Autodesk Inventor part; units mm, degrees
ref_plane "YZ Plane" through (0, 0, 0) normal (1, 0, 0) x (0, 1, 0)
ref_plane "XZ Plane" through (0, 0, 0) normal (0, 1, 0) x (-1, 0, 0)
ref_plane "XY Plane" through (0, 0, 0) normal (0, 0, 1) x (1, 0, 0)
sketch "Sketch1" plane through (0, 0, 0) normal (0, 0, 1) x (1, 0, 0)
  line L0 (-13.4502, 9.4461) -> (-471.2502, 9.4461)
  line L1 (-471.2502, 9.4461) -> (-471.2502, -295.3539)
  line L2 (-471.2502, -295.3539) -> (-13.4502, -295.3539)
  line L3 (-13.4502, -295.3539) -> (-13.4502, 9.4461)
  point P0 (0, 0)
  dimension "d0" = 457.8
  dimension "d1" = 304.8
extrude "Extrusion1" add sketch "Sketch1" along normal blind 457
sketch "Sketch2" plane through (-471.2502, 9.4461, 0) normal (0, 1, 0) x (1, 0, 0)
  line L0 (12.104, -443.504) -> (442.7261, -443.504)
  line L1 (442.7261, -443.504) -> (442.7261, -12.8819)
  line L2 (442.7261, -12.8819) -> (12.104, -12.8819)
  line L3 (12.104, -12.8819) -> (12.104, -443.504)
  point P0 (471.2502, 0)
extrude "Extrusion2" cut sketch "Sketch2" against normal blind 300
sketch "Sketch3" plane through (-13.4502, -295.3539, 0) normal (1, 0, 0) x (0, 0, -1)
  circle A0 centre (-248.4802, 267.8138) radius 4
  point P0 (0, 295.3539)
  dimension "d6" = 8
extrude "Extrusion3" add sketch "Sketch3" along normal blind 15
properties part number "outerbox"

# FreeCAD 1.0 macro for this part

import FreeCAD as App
import Part
import Sketcher

V = App.Vector


def add_polygon(sketch, points):
    """Adds a closed chain of lines whose ends are joined by coincident constraints."""
    first, n = sketch.GeometryCount, len(points)
    for a, b in zip(points, points[1:] + points[:1]):
        sketch.addGeometry(Part.LineSegment(App.Vector(*a, 0), App.Vector(*b, 0)), False)
    for i in range(n):
        sketch.addConstraint(Sketcher.Constraint("Coincident", first + i, 2, first + (i + 1) % n, 1))

doc = App.newDocument("Part")
body = doc.addObject("PartDesign::Body", "Body")

# Sketch on XY plane
sketch1 = doc.addObject("Sketcher::SketchObject", "Sketch")
body.addObject(sketch1)
sketch1.AttachmentSupport = (doc.XY_Plane, [""])
sketch1.MapMode = "FlatFace"
add_polygon(sketch1, [(-13.4502, -295.3539), (-13.4502, 9.4461), (-471.2502, 9.4461), (-471.2502, -295.3539)])  # lines 0-3
sketch1.addConstraint([
    Sketcher.Constraint("Vertical", 0),
    Sketcher.Constraint("Horizontal", 1),
    Sketcher.Constraint("Vertical", 2),
    Sketcher.Constraint("Horizontal", 3),
    Sketcher.Constraint("DistanceX", 1, 2, 1, 1, 457.8),
    Sketcher.Constraint("DistanceY", 0, 1, 0, 2, 304.8),
    Sketcher.Constraint("DistanceY", -1, 1, 0, 2, 9.446),
    Sketcher.Constraint("DistanceX", 0, 2, -1, 1, 13.4502),
])
pad1 = doc.addObject("PartDesign::Pad", "Pad")
body.addObject(pad1)
pad1.Profile = sketch1
pad1.Length = 457

# Sketch on XZ plane
sketch2 = doc.addObject("Sketcher::SketchObject", "Sketch001")
body.addObject(sketch2)
sketch2.AttachmentSupport = (doc.XZ_Plane, [""])
sketch2.MapMode = "FlatFace"
sketch2.AttachmentOffset = App.Placement(V(0, 0, -9.4461), App.Rotation())
add_polygon(sketch2, [(-459.1462, 12.8819), (-459.1462, 443.504), (-28.5241, 443.504), (-28.5241, 12.8819)])  # lines 0-3
sketch2.addConstraint([
    Sketcher.Constraint("Vertical", 0),
    Sketcher.Constraint("Horizontal", 1),
    Sketcher.Constraint("Vertical", 2),
    Sketcher.Constraint("Horizontal", 3),
    Sketcher.Constraint("Equal", 3, 0),
    Sketcher.Constraint("DistanceX", 1, 1, 1, 2, 430.622),
    Sketcher.Constraint("DistanceY", -1, 1, 0, 2, 443.504),
    Sketcher.Constraint("DistanceX", 1, 2, -1, 1, 28.524),
])
pocket1 = doc.addObject("PartDesign::Pocket", "Pocket")
body.addObject(pocket1)
pocket1.Profile = sketch2
pocket1.Length = 300
pocket1.Reversed = True

# Sketch on YZ plane
sketch3 = doc.addObject("Sketcher::SketchObject", "Sketch002")
body.addObject(sketch3)
sketch3.AttachmentSupport = (doc.YZ_Plane, [""])
sketch3.MapMode = "FlatFace"
sketch3.AttachmentOffset = App.Placement(V(0, 0, -13.4502), App.Rotation())
sketch3.addGeometry(Part.Circle(V(-27.5401, 248.4802, 0), V(0, 0, 1), 4), False)
sketch3.addConstraint([
    Sketcher.Constraint("Diameter", 0, 8.0),
    Sketcher.Constraint("DistanceX", 0, 3, -1, 1, 27.54),
    Sketcher.Constraint("DistanceY", -1, 1, 0, 3, 248.4802),
])
pad2 = doc.addObject("PartDesign::Pad", "Pad001")
body.addObject(pad2)
pad2.Profile = sketch3
pad2.Length = 15

doc.recompute()
